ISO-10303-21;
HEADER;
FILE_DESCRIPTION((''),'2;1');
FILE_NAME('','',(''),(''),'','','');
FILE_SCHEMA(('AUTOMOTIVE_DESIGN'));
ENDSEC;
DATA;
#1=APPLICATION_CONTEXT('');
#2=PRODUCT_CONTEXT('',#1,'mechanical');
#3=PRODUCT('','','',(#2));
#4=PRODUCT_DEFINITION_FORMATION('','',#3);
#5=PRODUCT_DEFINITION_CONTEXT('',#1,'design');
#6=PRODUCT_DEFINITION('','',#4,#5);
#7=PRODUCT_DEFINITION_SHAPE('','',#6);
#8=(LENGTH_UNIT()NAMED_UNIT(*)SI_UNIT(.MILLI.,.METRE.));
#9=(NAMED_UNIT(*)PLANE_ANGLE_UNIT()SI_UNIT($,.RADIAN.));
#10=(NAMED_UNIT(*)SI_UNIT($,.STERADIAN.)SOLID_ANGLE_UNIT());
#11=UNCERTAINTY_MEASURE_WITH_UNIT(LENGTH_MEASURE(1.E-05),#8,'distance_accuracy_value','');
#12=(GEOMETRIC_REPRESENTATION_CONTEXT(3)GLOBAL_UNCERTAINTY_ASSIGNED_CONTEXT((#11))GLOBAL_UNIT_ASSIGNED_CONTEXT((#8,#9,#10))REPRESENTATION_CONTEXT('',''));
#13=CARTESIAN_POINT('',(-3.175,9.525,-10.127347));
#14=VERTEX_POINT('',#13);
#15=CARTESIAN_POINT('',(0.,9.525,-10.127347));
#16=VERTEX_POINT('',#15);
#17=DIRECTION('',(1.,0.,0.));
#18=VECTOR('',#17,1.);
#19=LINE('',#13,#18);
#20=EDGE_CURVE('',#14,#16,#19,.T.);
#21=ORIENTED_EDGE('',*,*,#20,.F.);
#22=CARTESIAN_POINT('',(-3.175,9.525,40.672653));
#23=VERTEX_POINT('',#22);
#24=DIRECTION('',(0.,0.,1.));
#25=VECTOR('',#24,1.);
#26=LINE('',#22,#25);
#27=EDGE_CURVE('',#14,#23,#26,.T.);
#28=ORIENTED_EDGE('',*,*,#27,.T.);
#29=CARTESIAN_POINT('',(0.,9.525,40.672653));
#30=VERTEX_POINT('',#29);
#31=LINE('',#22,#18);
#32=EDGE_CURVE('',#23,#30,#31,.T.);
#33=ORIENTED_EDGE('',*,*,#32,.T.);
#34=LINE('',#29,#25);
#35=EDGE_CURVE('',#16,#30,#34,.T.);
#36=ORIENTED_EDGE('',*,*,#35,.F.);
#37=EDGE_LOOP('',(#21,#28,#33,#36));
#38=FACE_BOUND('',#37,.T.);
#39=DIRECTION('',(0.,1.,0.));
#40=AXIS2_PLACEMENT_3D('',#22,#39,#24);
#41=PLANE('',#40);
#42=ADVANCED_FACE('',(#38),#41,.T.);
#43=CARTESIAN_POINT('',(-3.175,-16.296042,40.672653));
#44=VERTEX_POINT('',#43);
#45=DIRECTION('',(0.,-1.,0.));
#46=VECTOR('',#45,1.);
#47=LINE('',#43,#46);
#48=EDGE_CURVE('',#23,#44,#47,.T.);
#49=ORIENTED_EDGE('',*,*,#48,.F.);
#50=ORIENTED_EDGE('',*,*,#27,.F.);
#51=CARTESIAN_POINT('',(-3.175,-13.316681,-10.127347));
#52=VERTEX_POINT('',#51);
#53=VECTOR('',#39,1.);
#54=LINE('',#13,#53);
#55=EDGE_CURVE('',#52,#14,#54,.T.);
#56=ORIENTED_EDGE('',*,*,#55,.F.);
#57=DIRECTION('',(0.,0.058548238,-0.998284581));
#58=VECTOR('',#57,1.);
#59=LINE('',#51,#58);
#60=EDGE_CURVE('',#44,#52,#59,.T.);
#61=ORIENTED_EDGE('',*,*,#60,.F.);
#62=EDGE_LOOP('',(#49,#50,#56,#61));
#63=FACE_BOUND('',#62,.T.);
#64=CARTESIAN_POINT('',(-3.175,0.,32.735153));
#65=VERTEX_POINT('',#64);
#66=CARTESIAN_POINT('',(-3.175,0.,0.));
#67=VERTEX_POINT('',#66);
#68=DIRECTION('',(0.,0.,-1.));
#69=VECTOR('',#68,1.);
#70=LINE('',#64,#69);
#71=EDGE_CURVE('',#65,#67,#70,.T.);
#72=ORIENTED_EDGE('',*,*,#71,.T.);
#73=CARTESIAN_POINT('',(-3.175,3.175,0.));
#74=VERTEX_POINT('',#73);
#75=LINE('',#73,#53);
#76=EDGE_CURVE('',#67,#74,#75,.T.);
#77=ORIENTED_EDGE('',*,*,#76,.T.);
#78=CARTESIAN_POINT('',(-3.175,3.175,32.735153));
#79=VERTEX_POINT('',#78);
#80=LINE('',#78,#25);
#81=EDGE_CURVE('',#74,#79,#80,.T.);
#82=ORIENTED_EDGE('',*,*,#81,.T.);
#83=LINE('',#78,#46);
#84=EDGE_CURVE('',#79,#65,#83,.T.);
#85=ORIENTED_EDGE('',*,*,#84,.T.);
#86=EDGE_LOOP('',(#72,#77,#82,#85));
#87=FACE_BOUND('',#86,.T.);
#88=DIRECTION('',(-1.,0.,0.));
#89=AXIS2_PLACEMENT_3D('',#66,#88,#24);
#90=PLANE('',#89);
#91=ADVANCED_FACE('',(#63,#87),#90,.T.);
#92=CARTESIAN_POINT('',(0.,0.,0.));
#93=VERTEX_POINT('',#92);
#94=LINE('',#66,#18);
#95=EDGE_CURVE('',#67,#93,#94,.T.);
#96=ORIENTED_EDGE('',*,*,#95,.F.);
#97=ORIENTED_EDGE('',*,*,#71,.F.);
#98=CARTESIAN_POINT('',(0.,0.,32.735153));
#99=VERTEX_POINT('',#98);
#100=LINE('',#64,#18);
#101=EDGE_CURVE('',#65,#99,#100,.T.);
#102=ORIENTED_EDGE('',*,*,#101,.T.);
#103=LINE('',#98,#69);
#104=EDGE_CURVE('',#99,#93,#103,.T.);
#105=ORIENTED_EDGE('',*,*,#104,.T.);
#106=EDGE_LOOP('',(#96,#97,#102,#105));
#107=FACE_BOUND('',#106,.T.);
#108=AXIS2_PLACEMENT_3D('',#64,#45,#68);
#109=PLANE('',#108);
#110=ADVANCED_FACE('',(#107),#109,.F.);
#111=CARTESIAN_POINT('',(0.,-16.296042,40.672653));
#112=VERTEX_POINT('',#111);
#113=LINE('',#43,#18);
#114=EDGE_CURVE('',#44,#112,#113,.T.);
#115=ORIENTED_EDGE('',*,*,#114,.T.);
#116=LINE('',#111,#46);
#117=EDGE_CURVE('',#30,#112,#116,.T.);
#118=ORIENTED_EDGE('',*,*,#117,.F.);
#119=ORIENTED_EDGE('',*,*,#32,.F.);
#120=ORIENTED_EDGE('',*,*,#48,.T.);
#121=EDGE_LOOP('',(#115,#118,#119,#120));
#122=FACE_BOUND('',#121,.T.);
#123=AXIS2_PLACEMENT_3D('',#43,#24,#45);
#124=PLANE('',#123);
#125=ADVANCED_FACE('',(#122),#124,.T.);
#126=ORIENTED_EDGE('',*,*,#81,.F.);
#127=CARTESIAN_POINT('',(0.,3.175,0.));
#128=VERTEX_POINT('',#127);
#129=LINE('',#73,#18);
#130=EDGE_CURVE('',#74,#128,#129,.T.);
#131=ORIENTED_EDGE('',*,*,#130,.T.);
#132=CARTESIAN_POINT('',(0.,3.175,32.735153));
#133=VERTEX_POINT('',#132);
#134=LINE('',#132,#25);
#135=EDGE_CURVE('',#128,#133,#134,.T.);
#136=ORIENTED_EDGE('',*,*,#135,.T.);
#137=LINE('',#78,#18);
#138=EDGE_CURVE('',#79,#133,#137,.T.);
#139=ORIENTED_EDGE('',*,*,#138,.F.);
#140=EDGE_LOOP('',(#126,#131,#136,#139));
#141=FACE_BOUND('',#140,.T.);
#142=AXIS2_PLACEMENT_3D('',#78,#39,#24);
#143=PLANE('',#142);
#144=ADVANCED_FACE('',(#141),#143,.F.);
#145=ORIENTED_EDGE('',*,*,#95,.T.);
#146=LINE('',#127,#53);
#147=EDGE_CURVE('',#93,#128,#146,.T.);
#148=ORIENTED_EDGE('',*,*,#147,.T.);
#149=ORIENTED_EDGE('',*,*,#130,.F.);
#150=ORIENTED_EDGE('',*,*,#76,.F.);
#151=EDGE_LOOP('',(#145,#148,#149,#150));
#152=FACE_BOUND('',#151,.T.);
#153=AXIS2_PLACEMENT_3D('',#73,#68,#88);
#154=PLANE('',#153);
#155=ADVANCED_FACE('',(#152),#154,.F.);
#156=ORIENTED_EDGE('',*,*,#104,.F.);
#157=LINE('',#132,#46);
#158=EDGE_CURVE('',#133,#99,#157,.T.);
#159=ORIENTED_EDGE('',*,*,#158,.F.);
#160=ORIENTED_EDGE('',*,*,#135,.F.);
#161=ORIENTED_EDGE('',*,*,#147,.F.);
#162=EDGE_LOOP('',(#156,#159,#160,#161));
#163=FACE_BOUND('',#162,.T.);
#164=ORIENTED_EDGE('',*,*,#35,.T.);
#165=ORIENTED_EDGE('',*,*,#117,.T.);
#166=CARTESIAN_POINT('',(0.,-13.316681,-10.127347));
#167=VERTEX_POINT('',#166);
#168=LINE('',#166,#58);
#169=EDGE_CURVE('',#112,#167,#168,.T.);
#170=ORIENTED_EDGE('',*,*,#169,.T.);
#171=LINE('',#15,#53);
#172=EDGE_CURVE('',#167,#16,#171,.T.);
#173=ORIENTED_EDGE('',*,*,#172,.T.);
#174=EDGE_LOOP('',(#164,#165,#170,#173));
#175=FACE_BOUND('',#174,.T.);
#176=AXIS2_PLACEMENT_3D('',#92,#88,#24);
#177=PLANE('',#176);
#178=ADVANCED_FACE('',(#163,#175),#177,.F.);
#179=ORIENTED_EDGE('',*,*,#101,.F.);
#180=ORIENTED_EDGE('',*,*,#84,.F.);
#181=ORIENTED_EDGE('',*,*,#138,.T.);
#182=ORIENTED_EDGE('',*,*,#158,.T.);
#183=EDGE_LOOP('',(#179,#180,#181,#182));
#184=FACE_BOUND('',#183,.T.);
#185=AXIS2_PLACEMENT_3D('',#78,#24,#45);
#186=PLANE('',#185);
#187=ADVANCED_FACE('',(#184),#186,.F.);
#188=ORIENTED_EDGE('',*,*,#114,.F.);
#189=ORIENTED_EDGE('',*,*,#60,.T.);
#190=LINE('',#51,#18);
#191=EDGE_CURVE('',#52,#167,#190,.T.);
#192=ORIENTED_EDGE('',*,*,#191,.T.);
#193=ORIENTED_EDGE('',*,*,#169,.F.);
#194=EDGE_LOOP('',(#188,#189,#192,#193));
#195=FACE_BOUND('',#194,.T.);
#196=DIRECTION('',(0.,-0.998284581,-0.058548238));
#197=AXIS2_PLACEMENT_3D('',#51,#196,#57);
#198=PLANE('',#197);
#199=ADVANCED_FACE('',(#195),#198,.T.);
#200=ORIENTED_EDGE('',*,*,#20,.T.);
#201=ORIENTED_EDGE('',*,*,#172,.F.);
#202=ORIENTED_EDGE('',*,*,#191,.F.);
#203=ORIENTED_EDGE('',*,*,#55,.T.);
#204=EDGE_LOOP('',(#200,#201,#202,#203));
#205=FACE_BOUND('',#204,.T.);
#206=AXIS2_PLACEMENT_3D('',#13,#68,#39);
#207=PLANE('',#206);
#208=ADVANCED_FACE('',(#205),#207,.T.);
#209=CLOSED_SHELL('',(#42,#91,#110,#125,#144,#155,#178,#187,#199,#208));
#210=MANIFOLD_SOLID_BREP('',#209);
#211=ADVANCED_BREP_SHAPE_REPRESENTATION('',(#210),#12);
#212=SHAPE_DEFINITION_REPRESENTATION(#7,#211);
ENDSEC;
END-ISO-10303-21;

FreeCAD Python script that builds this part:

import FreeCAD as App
import Part
import Sketcher

V = App.Vector
Q = App.Units.Quantity

doc = App.newDocument("Part")
body = doc.addObject("PartDesign::Body", "Body")

# Sketch on YZ plane
sketch1 = body.newObject("Sketcher::SketchObject", "Sketch")
sketch1.AttachmentSupport = (doc.getObject("YZ_Plane"), [""])
sketch1.MapMode = "FlatFace"
sketch1.addGeometry(Part.LineSegment(V(9.525, -10.127347, 0), V(9.525, 40.672653, 0)), False)
sketch1.addGeometry(Part.LineSegment(V(9.525, 40.672653, 0), V(-16.296042, 40.672653, 0)), False)
sketch1.addGeometry(Part.LineSegment(V(-16.296042, 40.672653, 0), V(-13.316681, -10.127347, 0)), False)
sketch1.addGeometry(Part.LineSegment(V(-13.316681, -10.127347, 0), V(9.525, -10.127347, 0)), False)
sketch1.addGeometry(Part.LineSegment(V(0, 32.735153, 0), V(3.175, 32.735153, 0)), False)
sketch1.addGeometry(Part.LineSegment(V(3.175, 32.735153, 0), V(3.175, 0, 0)), False)
sketch1.addGeometry(Part.LineSegment(V(3.175, 0, 0), V(0, 0, 0)), False)
sketch1.addGeometry(Part.LineSegment(V(0, 0, 0), V(0, 32.735153, 0)), False)
sketch1.addConstraint(Sketcher.Constraint("Coincident", 0, 2, 1, 1))
sketch1.addConstraint(Sketcher.Constraint("Coincident", 1, 2, 2, 1))
sketch1.addConstraint(Sketcher.Constraint("Coincident", 2, 2, 3, 1))
sketch1.addConstraint(Sketcher.Constraint("Coincident", 3, 2, 0, 1))
sketch1.addConstraint(Sketcher.Constraint("Coincident", 4, 2, 5, 1))
sketch1.addConstraint(Sketcher.Constraint("Coincident", 5, 2, 6, 1))
sketch1.addConstraint(Sketcher.Constraint("Coincident", 6, 2, 7, 1))
sketch1.addConstraint(Sketcher.Constraint("Coincident", 7, 2, 4, 1))
sketch1.addConstraint(Sketcher.Constraint("Vertical", 0))
sketch1.addConstraint(Sketcher.Constraint("Horizontal", 1))
sketch1.addConstraint(Sketcher.Constraint("Horizontal", 3))
sketch1.addConstraint(Sketcher.Constraint("Horizontal", 4))
sketch1.addConstraint(Sketcher.Constraint("Vertical", 5))
sketch1.addConstraint(Sketcher.Constraint("Horizontal", 6))
sketch1.addConstraint(Sketcher.Constraint("Vertical", 7))
sketch1.addConstraint(Sketcher.Constraint("Coincident", 6, 2, -1, 1))
sketch1.addConstraint(Sketcher.Constraint("DistanceY", 0, 1, 0, 2, Q("2 in")))
sketch1.addConstraint(Sketcher.Constraint("DistanceX", 4, 1, 4, 2, Q("0.125 in")))
sketch1.addConstraint(Sketcher.Constraint("DistanceX", 4, 2, 0, 2, Q("0.25 in")))
sketch1.addConstraint(Sketcher.Constraint("DistanceY", 4, 2, 0, 2, Q("0.3125 in")))
sketch1.addConstraint(Sketcher.Constraint("DistanceX", 1, 2, 1, 1, Q("25.821042 mm")))
sketch1.addConstraint(Sketcher.Constraint("DistanceX", 3, 1, 3, 2, Q("22.841681 mm")))
sketch1.addConstraint(Sketcher.Constraint("DistanceY", 5, 2, 5, 1, Q("32.735153 mm")))
pad1 = body.newObject("PartDesign::Pad", "Pad")
pad1.Profile = sketch1
pad1.Length = Q("0.125 in")
pad1.Reversed = True

doc.recompute()
